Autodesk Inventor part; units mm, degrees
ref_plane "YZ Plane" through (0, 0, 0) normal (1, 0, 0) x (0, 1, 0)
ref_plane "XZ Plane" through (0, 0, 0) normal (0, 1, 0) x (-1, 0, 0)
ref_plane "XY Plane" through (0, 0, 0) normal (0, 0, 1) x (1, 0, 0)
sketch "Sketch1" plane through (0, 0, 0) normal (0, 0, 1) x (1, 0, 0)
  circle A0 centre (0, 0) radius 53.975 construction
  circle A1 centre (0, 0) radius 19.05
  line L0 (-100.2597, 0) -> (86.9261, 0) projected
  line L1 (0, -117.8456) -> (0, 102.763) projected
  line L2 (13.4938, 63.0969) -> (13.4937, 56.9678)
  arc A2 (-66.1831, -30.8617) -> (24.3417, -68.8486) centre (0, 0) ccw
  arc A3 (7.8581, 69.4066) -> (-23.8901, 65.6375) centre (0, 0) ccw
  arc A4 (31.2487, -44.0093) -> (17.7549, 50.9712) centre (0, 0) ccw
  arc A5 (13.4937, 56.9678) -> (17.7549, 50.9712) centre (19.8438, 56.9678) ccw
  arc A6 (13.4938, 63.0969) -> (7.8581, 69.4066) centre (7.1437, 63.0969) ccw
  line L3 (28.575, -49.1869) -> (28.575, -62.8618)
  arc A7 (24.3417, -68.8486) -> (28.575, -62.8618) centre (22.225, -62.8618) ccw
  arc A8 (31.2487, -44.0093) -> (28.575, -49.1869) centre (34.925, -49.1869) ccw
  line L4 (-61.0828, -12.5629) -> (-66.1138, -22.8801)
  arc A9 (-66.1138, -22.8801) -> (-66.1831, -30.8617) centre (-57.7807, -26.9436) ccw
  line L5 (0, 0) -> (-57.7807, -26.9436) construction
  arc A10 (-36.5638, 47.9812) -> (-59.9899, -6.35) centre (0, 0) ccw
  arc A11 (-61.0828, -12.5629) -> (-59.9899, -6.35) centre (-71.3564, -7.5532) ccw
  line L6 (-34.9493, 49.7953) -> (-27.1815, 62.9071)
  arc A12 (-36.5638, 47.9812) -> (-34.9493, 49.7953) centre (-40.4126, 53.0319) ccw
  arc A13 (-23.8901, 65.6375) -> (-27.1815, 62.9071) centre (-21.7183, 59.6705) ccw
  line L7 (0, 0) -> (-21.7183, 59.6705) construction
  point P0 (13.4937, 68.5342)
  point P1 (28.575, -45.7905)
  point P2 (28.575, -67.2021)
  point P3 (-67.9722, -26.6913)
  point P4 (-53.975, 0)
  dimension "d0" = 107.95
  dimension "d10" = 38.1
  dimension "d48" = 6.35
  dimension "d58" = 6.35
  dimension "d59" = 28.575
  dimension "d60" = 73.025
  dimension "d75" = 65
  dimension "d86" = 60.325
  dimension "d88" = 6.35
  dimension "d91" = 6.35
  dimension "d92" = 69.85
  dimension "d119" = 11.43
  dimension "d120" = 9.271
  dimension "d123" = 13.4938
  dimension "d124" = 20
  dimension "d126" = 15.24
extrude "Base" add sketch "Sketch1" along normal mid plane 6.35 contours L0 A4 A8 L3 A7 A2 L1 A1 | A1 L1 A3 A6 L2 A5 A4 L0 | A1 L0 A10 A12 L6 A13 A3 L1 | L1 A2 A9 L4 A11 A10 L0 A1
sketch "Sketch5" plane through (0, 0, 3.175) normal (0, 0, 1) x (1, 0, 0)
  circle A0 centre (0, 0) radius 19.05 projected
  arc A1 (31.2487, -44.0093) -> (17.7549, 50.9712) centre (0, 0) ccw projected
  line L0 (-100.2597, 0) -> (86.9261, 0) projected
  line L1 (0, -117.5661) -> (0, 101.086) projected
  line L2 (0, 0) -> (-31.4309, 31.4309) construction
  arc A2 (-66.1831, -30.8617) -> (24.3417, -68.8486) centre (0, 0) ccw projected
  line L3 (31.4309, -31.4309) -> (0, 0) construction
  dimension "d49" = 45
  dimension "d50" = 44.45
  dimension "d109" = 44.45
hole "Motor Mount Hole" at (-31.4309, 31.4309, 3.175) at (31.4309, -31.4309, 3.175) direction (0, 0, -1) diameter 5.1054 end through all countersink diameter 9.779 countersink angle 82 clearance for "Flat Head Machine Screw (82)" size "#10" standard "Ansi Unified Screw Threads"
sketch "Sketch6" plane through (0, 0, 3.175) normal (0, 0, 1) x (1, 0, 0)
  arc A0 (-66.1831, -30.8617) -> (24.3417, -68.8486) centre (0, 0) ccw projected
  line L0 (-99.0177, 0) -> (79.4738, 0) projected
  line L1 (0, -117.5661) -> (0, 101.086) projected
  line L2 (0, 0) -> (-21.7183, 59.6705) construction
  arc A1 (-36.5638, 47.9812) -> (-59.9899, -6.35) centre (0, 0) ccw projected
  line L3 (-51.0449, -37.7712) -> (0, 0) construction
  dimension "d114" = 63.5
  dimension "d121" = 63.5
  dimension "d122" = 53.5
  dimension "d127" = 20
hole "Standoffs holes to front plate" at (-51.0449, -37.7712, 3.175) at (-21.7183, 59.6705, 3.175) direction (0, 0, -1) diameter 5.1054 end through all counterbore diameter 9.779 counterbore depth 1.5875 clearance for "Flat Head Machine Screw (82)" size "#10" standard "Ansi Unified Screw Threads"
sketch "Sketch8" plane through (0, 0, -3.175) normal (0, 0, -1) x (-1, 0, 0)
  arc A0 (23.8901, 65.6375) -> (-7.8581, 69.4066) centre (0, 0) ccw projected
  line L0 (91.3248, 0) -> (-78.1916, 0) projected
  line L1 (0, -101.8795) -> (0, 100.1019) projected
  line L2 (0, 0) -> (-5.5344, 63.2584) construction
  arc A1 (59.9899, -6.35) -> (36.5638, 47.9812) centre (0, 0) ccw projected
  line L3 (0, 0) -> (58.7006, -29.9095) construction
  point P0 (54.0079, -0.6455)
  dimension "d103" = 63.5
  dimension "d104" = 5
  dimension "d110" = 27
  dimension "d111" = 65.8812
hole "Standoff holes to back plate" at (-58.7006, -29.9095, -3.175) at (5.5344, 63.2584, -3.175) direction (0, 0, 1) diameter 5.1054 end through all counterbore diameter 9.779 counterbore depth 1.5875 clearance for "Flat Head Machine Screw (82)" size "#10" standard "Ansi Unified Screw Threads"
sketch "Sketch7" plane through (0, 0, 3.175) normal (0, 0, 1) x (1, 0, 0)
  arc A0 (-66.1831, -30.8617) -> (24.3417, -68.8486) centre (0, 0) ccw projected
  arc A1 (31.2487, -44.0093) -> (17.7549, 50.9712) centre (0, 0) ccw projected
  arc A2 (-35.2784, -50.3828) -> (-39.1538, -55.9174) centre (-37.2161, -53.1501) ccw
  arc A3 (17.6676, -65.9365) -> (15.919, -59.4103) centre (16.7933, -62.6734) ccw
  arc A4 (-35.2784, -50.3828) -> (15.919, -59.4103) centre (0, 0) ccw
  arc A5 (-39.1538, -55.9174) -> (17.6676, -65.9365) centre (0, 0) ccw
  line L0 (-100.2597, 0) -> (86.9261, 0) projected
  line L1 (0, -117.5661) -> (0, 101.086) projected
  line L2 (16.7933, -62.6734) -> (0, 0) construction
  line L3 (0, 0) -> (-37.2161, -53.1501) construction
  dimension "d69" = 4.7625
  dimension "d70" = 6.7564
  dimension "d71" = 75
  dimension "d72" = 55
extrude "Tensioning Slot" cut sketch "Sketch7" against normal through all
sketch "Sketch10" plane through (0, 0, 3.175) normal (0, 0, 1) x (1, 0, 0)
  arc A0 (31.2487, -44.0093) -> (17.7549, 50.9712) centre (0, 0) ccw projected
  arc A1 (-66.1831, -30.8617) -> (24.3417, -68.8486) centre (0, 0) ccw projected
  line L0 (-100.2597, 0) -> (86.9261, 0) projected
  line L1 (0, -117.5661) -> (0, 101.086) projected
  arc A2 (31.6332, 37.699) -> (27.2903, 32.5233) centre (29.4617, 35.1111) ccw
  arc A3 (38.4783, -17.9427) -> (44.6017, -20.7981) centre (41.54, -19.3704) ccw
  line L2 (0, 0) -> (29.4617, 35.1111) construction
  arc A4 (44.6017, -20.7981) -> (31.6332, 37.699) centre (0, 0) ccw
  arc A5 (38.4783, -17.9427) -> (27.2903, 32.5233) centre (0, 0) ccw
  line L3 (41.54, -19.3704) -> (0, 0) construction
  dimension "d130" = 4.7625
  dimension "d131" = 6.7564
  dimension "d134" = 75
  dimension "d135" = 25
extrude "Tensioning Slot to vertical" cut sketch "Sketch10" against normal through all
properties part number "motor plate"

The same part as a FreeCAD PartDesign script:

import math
import FreeCAD as App
import Part
import Sketcher

V = App.Vector
Q = App.Units.Quantity

doc = App.newDocument("Part")
body = doc.addObject("PartDesign::Body", "Body")

sketch1 = body.newObject("Sketcher::SketchObject", "Sketch")
sketch1.AttachmentSupport = (doc.getObject("XY_Plane"), [""])
sketch1.MapMode = "FlatFace"
sketch1.addGeometry([
    Part.ArcOfCircle(Part.Circle(V(0, 0, 0), V(0, 0, 1), 54), math.radians(-55), math.radians(71)),
    Part.ArcOfCircle(Part.Circle(V(19.8, 57, 0), V(0, 0, 1), 6.4), math.radians(180), math.radians(251)),
    Part.LineSegment(V(13.5, 57, 0), V(13.5, 63.1, 0)),
    Part.ArcOfCircle(Part.Circle(V(7.1, 63.1, 0), V(0, 0, 1), 6.4), math.radians(0), math.radians(84)),
    Part.ArcOfCircle(Part.Circle(V(0, 0, 0), V(0, 0, 1), 69.8), math.radians(84), math.radians(110)),
    Part.ArcOfCircle(Part.Circle(V(-21.7, 59.7, 0), V(0, 0, 1), 6.3), math.radians(110), math.radians(149)),
    Part.LineSegment(V(-27.2, 62.9, 0), V(-34.9, 49.8, 0)),
    Part.ArcOfCircle(Part.Circle(V(-40.4, 53, 0), V(0, 0, 1), 6.4), math.radians(-53), math.radians(-31)),
    Part.ArcOfCircle(Part.Circle(V(0, 0, 0), V(0, 0, 1), 60.3), math.radians(127), math.radians(186)),
    Part.ArcOfCircle(Part.Circle(V(-71.4, -7.6, 0), V(0, 0, 1), 11.4), math.radians(-26), math.radians(6)),
    Part.LineSegment(V(-61.1, -12.6, 0), V(-66.1, -22.9, 0)),
    Part.ArcOfCircle(Part.Circle(V(-57.8, -26.9, 0), V(0, 0, 1), 9.3), math.radians(154), math.radians(205)),
    Part.ArcOfCircle(Part.Circle(V(0, 0, 0), V(0, 0, 1), 73), math.radians(-155), math.radians(-71)),
    Part.ArcOfCircle(Part.Circle(V(22.2, -62.9, 0), V(0, 0, 1), 6.3), math.radians(-71), math.radians(0)),
    Part.LineSegment(V(28.6, -62.9, 0), V(28.6, -49.2, 0)),
    Part.ArcOfCircle(Part.Circle(V(34.9, -49.2, 0), V(0, 0, 1), 6.4), math.radians(125), math.radians(180)),
    Part.Circle(V(0, 0, 0), V(0, 0, 1), 19.1),
], False)
sketch1.addConstraint([
    Sketcher.Constraint("Tangent", 0, 2, 1, 2),
    Sketcher.Constraint("Tangent", 1, 1, 2, 1),
    Sketcher.Constraint("Tangent", 2, 2, 3, 1),
    Sketcher.Constraint("Tangent", 3, 2, 4, 1),
    Sketcher.Constraint("Tangent", 4, 2, 5, 1),
    Sketcher.Constraint("Tangent", 5, 2, 6, 1),
    Sketcher.Constraint("Tangent", 6, 2, 7, 2),
    Sketcher.Constraint("Tangent", 7, 1, 8, 1),
    Sketcher.Constraint("Tangent", 8, 2, 9, 2),
    Sketcher.Constraint("Tangent", 9, 1, 10, 1),
    Sketcher.Constraint("Tangent", 10, 2, 11, 1),
    Sketcher.Constraint("Tangent", 11, 2, 12, 1),
    Sketcher.Constraint("Tangent", 12, 2, 13, 1),
    Sketcher.Constraint("Tangent", 13, 2, 14, 1),
    Sketcher.Constraint("Tangent", 14, 2, 15, 2),
    Sketcher.Constraint("Tangent", 15, 1, 0, 1),
    Sketcher.Constraint("Vertical", 2),
    Sketcher.Constraint("Vertical", 14),
    Sketcher.Constraint("Coincident", 0, 3, -1, 1),
    Sketcher.Constraint("Coincident", 8, 3, -1, 1),
    Sketcher.Constraint("Coincident", 12, 3, -1, 1),
    Sketcher.Constraint("Coincident", 16, 3, -1, 1),
    Sketcher.Constraint("Equal", 1, 3),
    Sketcher.Constraint("Equal", 3, 5),
    Sketcher.Constraint("Equal", 5, 7),
    Sketcher.Constraint("Equal", 7, 13),
    Sketcher.Constraint("Equal", 13, 15),
    Sketcher.Constraint("PointOnObject", 4, 3, -2),
    Sketcher.Constraint("Diameter", 16, Q("1.5 in")),
    Sketcher.Constraint("Radius", 1, Q("0.25 in")),
    Sketcher.Constraint("Radius", 9, Q("0.45 in")),
    Sketcher.Constraint("Radius", 0, Q("2.125 in")),
    Sketcher.Constraint("Radius", 8, Q("2.375 in")),
    Sketcher.Constraint("Radius", 11, Q("0.365 in")),
    Sketcher.Constraint("Radius", 12, Q("2.875 in")),
    Sketcher.Constraint("Distance", 6, Q("0.6 in")),
    Sketcher.Constraint("DistanceY", 8, 2, -1, 1, Q("0.25 in")),
    Sketcher.Constraint("DistanceX", -1, 1, 1, 1, Q("0.531248 in")),
    Sketcher.Constraint("DistanceX", -1, 1, 13, 2, Q("1.125 in")),
    Sketcher.Constraint("Radius", 4, Q("69.849 mm")),
    Sketcher.Constraint("DistanceX", 9, 1, 11, 3, Q("0.13 in")),
    Sketcher.Constraint("DistanceY", 2, 1, 2, 2, Q("0.2413 in")),
    Sketcher.Constraint("DistanceX", 7, 3, 5, 3, Q("0.736 in")),
])
pad1 = body.newObject("PartDesign::Pad", "Pad")
pad1.Profile = sketch1
pad1.Length = Q("0.25 in")
pad1.Midplane = True

sketch2 = body.newObject("Sketcher::SketchObject", "Sketch001")
sketch2.AttachmentSupport = (doc.getObject("XY_Plane"), [""])
sketch2.MapMode = "FlatFace"
sketch2.AttachmentOffset = App.Placement(V(0, 0, 0.125 * 25.4), App.Rotation())
sketch2.addGeometry([
    Part.Circle(V(-31.4, 31.4, 0), V(0, 0, 1), 2.6),
    Part.Circle(V(31.4, -31.4, 0), V(0, 0, 1), 2.6),
], False)
sketch2.addConstraint([
    Sketcher.Constraint("Equal", 0, 1),
    Sketcher.Constraint("Symmetric", 0, 3, 1, 3, -1, 1),
    Sketcher.Constraint("Diameter", 0, Q("0.201 in")),
    Sketcher.Constraint("DistanceX", 0, 3, -1, 1, Q("31.431 mm")),
    Sketcher.Constraint("DistanceY", -1, 1, 0, 3, Q("31.431 mm")),
])
doc.recompute()
hole = body.newObject("PartDesign::Hole", "Hole")
hole.Profile = sketch2
hole.ThreadType = "None"
hole.Diameter = Q("0.201 in")
hole.DepthType = "ThroughAll"
hole.HoleCutType = "Countersink"
hole.HoleCutDiameter = Q("0.385 in")
hole.HoleCutCountersinkAngle = 82

sketch3 = body.newObject("Sketcher::SketchObject", "Sketch002")
sketch3.AttachmentSupport = (doc.getObject("XY_Plane"), [""])
sketch3.MapMode = "FlatFace"
sketch3.AttachmentOffset = App.Placement(V(0, 0, 0.125 * 25.4), App.Rotation())
sketch3.addGeometry([
    Part.Circle(V(-51, -37.8, 0), V(0, 0, 1), 2.6),
    Part.Circle(V(-21.7, 59.7, 0), V(0, 0, 1), 2.6),
], False)
sketch3.addConstraint([
    Sketcher.Constraint("Equal", 0, 1),
    Sketcher.Constraint("Diameter", 0, Q("0.201 in")),
    Sketcher.Constraint("DistanceX", 0, 3, 1, 3, Q("1.1546 in")),
    Sketcher.Constraint("DistanceX", 0, 3, -1, 1, Q("51.045 mm")),
    Sketcher.Constraint("DistanceY", 0, 3, -1, 1, Q("37.7712 mm")),
    Sketcher.Constraint("DistanceY", -1, 1, 1, 3, Q("59.6705 mm")),
])
doc.recompute()
hole2 = body.newObject("PartDesign::Hole", "Hole001")
hole2.Profile = sketch3
hole2.ThreadType = "None"
hole2.Diameter = Q("0.201 in")
hole2.DepthType = "ThroughAll"
hole2.HoleCutType = "Counterbore"
hole2.HoleCutDiameter = Q("0.385 in")
hole2.HoleCutDepth = Q("0.0625 in")

sketch4 = body.newObject("Sketcher::SketchObject", "Sketch003")
sketch4.AttachmentSupport = (doc.getObject("XY_Plane"), [""])
sketch4.MapMode = "FlatFace"
sketch4.AttachmentOffset = App.Placement(V(0, 0, -0.125 * 25.4), App.Rotation())
sketch4.addGeometry([
    Part.Circle(V(-58.7, -29.9, 0), V(0, 0, 1), 2.6),
    Part.Circle(V(5.5, 63.3, 0), V(0, 0, 1), 2.6),
], False)
sketch4.addConstraint([
    Sketcher.Constraint("Equal", 0, 1),
    Sketcher.Constraint("Diameter", 0, Q("0.201 in")),
    Sketcher.Constraint("DistanceX", -1, 1, 1, 3, Q("0.2179 in")),
    Sketcher.Constraint("DistanceY", -1, 1, 1, 3, Q("2.4905 in")),
    Sketcher.Constraint("DistanceX", 0, 3, -1, 1, Q("58.7006 mm")),
    Sketcher.Constraint("DistanceY", 0, 3, -1, 1, Q("29.9095 mm")),
])
doc.recompute()
hole3 = body.newObject("PartDesign::Hole", "Hole002")
hole3.Profile = sketch4
hole3.ThreadType = "None"
hole3.Diameter = Q("0.201 in")
hole3.DepthType = "ThroughAll"
hole3.HoleCutType = "Counterbore"
hole3.HoleCutDiameter = Q("0.385 in")
hole3.HoleCutDepth = Q("0.0625 in")
hole3.Reversed = True

sketch5 = body.newObject("Sketcher::SketchObject", "Sketch004")
sketch5.AttachmentSupport = (doc.getObject("XY_Plane"), [""])
sketch5.MapMode = "FlatFace"
sketch5.AttachmentOffset = App.Placement(V(0, 0, 0.125 * 25.4), App.Rotation())
sketch5.addGeometry([
    Part.ArcOfCircle(Part.Circle(V(-37.2, -53.2, 0), V(0, 0, 1), 3.4), math.radians(55), math.radians(235)),
    Part.ArcOfCircle(Part.Circle(V(0, 0, 0), V(0, 0, 1), 68.3), math.radians(-125), math.radians(-75)),
    Part.ArcOfCircle(Part.Circle(V(16.8, -62.7, 0), V(0, 0, 1), 3.4), math.radians(-75), math.radians(105)),
    Part.ArcOfCircle(Part.Circle(V(0, 0, 0), V(0, 0, 1), 61.5), math.radians(-125), math.radians(-75)),
], False)
sketch5.addConstraint([
    Sketcher.Constraint("Tangent", 0, 2, 1, 1),
    Sketcher.Constraint("Tangent", 1, 2, 2, 1),
    Sketcher.Constraint("Tangent", 2, 2, 3, 2),
    Sketcher.Constraint("Tangent", 3, 1, 0, 1),
    Sketcher.Constraint("Coincident", 1, 3, -1, 1),
    Sketcher.Constraint("Coincident", 3, 3, -1, 1),
    Sketcher.Constraint("Radius", 0, Q("0.133 in")),
    Sketcher.Constraint("Radius", 1, Q("2.6875 in")),
    Sketcher.Constraint("DistanceY", 2, 3, 0, 2, Q("6.756 mm")),
    Sketcher.Constraint("DistanceY", 2, 2, -1, 1, Q("2.339 in")),
])
pocket1 = body.newObject("PartDesign::Pocket", "Pocket")
pocket1.Profile = sketch5
pocket1.Type = "ThroughAll"

sketch6 = body.newObject("Sketcher::SketchObject", "Sketch005")
sketch6.AttachmentSupport = (doc.getObject("XY_Plane"), [""])
sketch6.MapMode = "FlatFace"
sketch6.AttachmentOffset = App.Placement(V(0, 0, 0.125 * 25.4), App.Rotation())
sketch6.addGeometry([
    Part.ArcOfCircle(Part.Circle(V(0, 0, 0), V(0, 0, 1), 42.5), math.radians(-25), math.radians(50)),
    Part.ArcOfCircle(Part.Circle(V(41.5, -19.4, 0), V(0, 0, 1), 3.4), math.radians(155), math.radians(335)),
    Part.ArcOfCircle(Part.Circle(V(0, 0, 0), V(0, 0, 1), 49.2), math.radians(-25), math.radians(50)),
    Part.ArcOfCircle(Part.Circle(V(29.5, 35.1, 0), V(0, 0, 1), 3.4), math.radians(50), math.radians(230)),
], False)
sketch6.addConstraint([
    Sketcher.Constraint("Tangent", 0, 1, 1, 1),
    Sketcher.Constraint("Tangent", 1, 2, 2, 1),
    Sketcher.Constraint("Tangent", 2, 2, 3, 1),
    Sketcher.Constraint("Tangent", 3, 2, 0, 2),
    Sketcher.Constraint("Coincident", 0, 3, -1, 1),
    Sketcher.Constraint("Coincident", 2, 3, -1, 1),
    Sketcher.Constraint("Radius", 1, Q("0.133 in")),
    Sketcher.Constraint("Radius", 2, Q("1.9375 in")),
    Sketcher.Constraint("DistanceX", -1, 1, 3, 3, Q("1.1599 in")),
    Sketcher.Constraint("DistanceX", -1, 1, 0, 1, Q("1.5149 in")),
])
pocket2 = body.newObject("PartDesign::Pocket", "Pocket001")
pocket2.Profile = sketch6
pocket2.Type = "ThroughAll"

doc.recompute()
